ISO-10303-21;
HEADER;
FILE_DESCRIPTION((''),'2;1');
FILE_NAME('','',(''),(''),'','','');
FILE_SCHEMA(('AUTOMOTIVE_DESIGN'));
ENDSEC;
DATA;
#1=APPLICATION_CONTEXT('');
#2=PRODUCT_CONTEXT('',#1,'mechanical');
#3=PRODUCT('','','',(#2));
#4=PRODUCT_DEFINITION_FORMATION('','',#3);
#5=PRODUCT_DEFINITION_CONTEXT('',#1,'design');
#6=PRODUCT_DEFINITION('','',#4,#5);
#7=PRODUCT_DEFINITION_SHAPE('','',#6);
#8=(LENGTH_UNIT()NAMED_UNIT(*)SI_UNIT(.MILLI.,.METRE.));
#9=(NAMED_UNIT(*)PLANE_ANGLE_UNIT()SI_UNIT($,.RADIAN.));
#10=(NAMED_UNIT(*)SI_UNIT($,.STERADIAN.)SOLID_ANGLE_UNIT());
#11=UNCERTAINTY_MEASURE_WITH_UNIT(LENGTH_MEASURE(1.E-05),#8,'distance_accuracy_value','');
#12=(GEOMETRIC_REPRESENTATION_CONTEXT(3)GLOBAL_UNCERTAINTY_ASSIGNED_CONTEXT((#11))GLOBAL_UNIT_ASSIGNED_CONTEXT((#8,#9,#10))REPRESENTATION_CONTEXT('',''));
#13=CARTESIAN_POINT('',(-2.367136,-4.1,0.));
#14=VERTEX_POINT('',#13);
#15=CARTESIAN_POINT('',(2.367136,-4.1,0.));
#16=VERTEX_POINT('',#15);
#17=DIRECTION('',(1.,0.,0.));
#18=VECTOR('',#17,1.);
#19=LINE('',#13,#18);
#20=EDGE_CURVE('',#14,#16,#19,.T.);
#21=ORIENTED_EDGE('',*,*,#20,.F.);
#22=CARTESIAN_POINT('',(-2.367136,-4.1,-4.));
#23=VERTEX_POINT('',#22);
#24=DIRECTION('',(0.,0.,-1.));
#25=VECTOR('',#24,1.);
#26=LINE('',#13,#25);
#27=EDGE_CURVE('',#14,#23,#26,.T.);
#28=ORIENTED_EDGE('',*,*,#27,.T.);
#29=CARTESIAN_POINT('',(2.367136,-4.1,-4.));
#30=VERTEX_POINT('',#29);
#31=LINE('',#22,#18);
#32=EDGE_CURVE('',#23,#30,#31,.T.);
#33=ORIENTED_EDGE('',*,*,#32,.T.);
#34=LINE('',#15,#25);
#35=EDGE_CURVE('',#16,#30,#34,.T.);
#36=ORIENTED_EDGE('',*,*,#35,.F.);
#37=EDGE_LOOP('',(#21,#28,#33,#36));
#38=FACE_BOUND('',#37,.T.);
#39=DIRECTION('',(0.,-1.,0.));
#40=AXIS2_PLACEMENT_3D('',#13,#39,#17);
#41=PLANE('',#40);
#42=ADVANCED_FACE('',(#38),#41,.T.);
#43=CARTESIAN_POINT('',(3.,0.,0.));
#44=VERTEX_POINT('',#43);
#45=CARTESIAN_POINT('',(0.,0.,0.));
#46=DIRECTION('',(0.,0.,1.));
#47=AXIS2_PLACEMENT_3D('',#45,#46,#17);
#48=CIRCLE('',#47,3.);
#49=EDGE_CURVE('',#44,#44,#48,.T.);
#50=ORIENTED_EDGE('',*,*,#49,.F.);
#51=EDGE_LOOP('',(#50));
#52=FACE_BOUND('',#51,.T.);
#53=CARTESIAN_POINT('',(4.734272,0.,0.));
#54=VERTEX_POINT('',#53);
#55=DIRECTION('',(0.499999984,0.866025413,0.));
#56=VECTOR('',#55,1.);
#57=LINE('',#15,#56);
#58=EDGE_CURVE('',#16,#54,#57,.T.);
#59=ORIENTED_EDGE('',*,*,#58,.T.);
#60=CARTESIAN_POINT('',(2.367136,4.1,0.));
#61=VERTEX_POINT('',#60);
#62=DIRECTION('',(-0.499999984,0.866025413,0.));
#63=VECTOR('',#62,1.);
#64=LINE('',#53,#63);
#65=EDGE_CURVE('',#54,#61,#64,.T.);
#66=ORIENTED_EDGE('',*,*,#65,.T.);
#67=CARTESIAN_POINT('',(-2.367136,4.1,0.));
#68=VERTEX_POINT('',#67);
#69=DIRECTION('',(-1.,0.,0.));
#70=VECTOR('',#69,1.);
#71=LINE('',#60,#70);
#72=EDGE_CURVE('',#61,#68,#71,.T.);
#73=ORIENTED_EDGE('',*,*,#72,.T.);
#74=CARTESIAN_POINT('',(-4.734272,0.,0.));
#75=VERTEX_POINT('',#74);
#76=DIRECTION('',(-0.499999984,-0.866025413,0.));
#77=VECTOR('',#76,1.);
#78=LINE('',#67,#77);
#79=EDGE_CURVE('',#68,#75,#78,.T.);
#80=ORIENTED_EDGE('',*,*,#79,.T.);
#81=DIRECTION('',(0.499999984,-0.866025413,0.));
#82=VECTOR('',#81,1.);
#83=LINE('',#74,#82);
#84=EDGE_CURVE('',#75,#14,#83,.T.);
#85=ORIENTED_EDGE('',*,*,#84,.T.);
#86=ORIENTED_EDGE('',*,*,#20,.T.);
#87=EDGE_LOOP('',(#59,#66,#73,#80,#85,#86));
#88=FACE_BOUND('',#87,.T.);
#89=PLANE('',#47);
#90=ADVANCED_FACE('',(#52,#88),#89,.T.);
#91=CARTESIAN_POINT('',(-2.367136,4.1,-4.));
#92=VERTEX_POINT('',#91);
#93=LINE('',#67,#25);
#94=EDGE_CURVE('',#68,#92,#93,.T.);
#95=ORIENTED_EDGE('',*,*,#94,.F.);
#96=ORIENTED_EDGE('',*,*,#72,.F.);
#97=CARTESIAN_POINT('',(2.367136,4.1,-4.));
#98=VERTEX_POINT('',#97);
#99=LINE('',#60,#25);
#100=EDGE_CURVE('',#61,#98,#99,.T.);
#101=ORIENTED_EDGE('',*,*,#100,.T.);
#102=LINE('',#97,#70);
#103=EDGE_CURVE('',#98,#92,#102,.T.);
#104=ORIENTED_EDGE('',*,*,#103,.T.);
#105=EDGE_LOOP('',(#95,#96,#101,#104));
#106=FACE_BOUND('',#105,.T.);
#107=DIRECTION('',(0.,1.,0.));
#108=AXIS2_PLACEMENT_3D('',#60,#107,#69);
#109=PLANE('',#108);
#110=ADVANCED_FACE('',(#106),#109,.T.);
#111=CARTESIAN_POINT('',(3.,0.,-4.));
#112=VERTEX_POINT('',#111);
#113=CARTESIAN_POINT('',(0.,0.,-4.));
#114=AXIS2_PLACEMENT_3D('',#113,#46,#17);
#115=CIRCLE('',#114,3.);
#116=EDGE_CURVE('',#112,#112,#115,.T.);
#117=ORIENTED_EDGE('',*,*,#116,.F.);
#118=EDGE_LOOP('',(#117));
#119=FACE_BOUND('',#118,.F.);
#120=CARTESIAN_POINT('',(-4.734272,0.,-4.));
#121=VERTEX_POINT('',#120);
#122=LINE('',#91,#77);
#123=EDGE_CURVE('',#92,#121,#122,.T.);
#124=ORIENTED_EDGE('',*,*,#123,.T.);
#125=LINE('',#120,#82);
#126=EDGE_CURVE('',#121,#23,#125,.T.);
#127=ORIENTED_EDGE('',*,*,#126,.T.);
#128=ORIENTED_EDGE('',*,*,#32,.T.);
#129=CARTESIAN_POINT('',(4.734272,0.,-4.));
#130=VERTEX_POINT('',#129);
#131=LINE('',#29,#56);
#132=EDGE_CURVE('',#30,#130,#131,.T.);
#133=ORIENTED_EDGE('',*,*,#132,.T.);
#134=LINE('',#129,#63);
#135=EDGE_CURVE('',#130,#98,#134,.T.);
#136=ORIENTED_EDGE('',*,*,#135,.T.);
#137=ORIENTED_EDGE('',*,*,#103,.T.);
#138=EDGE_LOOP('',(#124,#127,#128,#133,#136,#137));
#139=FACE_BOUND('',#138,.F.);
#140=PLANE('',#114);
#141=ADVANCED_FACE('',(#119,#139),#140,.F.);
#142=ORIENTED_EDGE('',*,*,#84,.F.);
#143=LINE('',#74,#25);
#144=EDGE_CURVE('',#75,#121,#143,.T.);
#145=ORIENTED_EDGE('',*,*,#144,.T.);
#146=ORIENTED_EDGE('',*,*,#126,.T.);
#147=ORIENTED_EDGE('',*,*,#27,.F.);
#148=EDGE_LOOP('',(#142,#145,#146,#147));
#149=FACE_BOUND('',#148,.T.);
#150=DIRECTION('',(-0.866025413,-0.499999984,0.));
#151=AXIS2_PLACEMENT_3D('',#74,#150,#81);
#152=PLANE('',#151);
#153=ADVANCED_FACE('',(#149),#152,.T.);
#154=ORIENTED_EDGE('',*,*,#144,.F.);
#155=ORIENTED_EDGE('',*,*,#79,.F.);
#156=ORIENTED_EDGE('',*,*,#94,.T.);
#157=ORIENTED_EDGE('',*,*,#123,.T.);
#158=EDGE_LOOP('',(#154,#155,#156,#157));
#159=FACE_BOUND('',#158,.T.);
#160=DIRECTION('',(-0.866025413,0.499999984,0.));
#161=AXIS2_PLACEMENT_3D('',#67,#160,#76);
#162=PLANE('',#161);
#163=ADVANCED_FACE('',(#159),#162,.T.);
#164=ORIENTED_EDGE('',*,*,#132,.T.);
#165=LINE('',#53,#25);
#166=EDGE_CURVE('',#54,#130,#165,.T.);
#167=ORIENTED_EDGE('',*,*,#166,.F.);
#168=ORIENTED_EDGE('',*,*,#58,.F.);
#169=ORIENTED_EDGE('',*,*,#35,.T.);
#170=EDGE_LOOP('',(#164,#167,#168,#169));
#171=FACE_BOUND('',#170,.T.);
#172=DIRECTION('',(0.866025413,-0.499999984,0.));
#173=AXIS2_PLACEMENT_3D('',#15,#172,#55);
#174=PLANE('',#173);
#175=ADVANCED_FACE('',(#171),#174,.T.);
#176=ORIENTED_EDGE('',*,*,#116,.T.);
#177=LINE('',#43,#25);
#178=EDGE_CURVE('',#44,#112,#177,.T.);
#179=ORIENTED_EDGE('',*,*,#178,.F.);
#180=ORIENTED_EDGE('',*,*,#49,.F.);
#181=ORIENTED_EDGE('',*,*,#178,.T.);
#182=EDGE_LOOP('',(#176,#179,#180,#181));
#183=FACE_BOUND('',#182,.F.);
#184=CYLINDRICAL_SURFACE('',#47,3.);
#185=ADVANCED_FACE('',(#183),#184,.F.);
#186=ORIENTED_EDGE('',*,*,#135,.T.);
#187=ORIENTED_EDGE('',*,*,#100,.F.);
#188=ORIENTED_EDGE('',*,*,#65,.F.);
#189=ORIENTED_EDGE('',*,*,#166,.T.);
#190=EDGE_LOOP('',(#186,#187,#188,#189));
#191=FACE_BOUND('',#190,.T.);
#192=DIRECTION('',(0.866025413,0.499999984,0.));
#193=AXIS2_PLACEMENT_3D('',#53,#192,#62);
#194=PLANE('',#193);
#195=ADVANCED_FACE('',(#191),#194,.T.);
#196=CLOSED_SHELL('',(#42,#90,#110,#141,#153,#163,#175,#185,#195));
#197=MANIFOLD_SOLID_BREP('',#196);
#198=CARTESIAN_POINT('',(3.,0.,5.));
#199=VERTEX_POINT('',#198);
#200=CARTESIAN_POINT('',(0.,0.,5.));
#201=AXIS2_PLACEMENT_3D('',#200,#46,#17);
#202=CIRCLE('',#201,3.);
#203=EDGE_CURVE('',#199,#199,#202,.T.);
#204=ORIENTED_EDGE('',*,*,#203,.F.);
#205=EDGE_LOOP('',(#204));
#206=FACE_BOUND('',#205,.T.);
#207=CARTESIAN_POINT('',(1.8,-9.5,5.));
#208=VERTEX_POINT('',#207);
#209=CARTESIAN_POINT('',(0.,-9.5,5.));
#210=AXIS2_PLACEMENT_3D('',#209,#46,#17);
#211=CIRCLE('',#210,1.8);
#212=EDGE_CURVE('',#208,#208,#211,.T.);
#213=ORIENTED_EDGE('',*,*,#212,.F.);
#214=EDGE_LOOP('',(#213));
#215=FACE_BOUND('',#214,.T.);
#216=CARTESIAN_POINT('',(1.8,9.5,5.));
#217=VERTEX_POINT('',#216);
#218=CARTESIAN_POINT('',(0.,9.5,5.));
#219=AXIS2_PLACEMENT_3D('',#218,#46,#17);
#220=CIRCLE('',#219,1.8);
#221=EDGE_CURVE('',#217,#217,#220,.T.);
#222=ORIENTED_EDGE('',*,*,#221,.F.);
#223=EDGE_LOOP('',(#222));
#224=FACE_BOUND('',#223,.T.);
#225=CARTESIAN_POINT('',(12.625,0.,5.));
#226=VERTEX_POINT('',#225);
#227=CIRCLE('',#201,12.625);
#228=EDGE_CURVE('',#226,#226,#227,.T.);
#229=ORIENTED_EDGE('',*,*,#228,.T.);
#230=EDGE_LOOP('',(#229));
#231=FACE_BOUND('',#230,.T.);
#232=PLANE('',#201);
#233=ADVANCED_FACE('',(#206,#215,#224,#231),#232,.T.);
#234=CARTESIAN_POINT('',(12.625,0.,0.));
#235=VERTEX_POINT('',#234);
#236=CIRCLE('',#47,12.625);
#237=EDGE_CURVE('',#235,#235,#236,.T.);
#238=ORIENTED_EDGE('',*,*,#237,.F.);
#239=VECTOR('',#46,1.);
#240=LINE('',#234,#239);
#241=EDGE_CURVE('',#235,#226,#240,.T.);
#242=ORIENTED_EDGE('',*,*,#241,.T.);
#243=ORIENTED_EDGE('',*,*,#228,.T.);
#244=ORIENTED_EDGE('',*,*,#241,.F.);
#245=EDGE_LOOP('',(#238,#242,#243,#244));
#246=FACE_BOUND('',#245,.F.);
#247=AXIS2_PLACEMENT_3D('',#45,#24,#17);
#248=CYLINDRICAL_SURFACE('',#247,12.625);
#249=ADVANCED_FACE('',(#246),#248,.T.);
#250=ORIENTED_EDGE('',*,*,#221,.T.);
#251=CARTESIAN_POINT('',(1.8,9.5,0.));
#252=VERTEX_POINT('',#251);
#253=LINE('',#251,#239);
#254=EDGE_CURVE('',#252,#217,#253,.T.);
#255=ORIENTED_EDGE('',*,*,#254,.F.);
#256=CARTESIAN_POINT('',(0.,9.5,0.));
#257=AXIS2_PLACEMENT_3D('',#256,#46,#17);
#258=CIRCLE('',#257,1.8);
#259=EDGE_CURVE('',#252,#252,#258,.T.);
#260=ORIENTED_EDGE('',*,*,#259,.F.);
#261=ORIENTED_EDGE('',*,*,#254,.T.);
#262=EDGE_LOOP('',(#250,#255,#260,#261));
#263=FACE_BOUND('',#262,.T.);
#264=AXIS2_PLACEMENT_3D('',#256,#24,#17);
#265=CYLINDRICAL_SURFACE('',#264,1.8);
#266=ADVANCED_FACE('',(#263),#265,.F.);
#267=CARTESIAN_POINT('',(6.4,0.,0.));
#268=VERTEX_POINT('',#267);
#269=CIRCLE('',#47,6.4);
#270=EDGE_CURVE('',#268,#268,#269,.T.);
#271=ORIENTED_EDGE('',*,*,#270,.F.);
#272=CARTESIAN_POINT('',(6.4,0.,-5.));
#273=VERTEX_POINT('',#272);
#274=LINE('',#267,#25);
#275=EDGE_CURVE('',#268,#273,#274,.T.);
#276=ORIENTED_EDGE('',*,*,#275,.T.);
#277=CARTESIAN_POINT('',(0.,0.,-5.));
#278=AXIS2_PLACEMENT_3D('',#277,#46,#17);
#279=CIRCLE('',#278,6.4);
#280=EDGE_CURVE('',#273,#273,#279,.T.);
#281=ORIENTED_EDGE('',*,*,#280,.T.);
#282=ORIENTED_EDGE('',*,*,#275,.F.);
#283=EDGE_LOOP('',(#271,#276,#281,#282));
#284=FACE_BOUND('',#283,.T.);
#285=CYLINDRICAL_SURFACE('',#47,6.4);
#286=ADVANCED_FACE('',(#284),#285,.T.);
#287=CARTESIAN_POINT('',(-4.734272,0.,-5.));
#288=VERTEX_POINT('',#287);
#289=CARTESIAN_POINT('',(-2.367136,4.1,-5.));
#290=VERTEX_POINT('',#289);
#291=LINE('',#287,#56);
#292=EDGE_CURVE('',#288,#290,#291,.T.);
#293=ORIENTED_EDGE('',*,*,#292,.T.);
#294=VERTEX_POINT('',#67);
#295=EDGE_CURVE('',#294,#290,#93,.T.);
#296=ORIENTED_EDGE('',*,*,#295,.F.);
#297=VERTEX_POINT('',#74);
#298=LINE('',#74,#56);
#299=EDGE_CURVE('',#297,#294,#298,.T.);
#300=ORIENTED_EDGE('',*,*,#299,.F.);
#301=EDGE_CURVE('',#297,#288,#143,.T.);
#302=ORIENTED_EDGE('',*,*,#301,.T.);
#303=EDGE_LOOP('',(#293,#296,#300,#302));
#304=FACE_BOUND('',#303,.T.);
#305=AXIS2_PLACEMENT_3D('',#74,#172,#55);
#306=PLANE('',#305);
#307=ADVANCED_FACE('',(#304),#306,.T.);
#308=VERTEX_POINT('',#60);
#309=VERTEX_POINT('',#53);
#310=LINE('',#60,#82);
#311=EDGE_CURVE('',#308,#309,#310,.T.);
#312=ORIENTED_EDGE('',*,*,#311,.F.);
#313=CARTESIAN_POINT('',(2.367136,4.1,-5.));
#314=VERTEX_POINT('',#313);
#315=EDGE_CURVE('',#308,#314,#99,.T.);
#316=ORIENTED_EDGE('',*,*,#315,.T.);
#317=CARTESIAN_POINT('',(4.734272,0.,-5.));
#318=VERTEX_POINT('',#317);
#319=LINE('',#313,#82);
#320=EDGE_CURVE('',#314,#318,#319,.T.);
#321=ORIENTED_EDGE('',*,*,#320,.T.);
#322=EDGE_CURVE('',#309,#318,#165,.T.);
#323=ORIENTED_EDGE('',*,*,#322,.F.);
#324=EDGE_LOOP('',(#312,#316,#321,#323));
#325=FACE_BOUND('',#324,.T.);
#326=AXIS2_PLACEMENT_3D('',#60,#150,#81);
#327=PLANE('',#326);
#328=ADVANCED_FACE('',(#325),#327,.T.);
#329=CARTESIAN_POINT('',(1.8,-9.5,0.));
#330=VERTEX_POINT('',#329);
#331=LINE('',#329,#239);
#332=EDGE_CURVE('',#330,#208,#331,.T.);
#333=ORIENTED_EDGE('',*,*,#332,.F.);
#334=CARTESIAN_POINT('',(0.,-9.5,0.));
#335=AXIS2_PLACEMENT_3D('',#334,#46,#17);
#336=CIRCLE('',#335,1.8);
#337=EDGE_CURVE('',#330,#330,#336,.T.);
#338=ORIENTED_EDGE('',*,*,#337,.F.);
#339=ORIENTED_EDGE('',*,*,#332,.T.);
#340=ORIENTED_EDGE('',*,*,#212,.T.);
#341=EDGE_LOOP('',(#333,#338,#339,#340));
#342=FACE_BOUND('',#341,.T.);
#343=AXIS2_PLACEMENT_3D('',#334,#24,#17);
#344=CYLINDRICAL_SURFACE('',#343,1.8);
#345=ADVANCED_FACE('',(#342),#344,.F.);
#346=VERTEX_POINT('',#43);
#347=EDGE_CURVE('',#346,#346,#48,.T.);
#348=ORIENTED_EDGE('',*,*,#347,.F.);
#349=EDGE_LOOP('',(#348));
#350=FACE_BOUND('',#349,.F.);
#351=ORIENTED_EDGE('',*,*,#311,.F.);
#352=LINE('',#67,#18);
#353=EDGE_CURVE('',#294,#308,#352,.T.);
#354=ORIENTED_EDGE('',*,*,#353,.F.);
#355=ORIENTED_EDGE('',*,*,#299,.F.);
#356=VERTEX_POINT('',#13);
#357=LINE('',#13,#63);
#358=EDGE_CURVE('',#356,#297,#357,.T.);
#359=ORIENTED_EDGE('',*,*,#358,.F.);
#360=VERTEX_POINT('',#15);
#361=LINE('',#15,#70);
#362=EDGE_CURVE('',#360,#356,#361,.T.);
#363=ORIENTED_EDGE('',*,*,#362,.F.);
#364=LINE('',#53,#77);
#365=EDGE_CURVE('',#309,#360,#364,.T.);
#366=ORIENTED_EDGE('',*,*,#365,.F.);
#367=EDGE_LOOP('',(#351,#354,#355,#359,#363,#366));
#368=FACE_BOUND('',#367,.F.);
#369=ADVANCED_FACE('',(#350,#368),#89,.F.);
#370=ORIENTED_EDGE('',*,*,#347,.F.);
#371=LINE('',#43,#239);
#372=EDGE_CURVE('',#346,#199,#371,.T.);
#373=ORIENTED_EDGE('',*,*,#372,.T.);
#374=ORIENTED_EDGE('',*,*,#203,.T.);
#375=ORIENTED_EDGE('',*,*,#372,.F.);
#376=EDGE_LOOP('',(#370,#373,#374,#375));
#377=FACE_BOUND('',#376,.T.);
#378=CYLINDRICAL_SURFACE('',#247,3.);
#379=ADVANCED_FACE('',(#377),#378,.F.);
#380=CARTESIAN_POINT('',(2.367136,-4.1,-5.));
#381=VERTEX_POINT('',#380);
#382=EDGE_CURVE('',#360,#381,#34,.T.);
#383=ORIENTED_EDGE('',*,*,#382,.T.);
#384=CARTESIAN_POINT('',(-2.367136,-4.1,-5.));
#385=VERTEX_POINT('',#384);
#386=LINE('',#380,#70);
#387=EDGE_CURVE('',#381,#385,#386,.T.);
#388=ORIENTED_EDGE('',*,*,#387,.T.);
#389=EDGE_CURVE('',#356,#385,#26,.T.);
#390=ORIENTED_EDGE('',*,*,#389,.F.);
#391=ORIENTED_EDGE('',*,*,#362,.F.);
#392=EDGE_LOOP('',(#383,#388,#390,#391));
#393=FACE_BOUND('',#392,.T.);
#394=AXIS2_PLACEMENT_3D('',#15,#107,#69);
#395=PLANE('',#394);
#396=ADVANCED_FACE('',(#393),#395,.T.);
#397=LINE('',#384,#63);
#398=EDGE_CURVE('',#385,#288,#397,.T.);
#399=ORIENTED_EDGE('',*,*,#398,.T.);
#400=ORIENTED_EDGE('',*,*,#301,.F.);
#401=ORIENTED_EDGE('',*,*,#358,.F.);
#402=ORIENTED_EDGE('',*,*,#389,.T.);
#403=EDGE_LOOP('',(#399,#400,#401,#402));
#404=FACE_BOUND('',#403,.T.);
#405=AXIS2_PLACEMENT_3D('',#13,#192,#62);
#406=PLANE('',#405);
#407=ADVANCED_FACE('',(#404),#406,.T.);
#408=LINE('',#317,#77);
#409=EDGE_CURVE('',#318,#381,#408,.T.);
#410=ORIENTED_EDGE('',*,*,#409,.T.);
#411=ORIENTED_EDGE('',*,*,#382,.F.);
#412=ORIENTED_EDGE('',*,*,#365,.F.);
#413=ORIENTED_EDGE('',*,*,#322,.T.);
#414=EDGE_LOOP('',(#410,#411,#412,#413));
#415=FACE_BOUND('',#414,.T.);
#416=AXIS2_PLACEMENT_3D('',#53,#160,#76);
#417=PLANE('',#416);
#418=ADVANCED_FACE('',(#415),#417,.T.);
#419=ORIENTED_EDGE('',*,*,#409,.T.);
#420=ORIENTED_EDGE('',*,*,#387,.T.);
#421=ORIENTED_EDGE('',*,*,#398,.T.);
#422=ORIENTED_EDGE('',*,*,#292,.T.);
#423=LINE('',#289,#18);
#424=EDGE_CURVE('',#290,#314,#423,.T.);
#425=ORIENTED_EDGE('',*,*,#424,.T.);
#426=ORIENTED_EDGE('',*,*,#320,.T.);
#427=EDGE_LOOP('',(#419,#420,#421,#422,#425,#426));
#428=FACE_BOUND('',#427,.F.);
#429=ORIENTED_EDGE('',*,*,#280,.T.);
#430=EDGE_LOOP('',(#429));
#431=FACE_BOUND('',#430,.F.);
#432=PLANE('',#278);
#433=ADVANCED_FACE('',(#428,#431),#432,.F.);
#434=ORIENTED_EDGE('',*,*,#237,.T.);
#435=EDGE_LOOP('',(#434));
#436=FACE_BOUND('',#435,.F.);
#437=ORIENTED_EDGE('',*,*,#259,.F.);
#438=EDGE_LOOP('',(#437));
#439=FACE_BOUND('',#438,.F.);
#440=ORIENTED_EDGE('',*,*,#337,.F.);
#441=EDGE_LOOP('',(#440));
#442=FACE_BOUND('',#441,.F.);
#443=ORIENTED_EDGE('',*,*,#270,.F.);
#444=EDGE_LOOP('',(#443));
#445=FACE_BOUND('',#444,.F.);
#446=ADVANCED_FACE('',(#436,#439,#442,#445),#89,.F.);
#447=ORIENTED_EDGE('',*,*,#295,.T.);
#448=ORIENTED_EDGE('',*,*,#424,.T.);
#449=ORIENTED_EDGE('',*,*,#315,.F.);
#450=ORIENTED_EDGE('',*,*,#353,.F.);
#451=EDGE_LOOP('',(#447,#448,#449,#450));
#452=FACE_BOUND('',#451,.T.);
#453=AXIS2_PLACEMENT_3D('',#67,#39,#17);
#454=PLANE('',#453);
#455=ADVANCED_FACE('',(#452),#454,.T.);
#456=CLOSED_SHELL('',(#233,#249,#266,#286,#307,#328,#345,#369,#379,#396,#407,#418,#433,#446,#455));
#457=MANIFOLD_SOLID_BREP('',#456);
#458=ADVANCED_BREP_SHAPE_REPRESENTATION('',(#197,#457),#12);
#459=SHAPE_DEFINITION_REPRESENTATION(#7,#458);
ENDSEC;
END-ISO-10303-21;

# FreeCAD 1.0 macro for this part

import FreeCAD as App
import Part
import Sketcher
from FreeCAD import Vector
Q = App.Units.Quantity


def add_polygon(sketch, points):
    """Adds a closed chain of lines whose ends are joined by coincident constraints."""
    first, n = sketch.GeometryCount, len(points)
    for a, b in zip(points, points[1:] + points[:1]):
        sketch.addGeometry(Part.LineSegment(App.Vector(*a, 0), App.Vector(*b, 0)), False)
    for i in range(n):
        sketch.addConstraint(Sketcher.Constraint("Coincident", first + i, 2, first + (i + 1) % n, 1))

doc = App.newDocument("Part")
body = doc.addObject("PartDesign::Body", "Body")

sketch1 = body.newObject("Sketcher::SketchObject", "Sketch")
sketch1.AttachmentSupport = (doc.getObject("XY_Plane"), [""])
sketch1.MapMode = "FlatFace"
sketch1.addGeometry([
    Part.Circle(Vector(0, 0, 0), Vector(0, 0, 1), 12.625),
    Part.Circle(Vector(0, -9.5, 0), Vector(0, 0, 1), 1.8),
    Part.Circle(Vector(0, 0, 0), Vector(0, 0, 1), 3),
    Part.Circle(Vector(0, 9.5, 0), Vector(0, 0, 1), 1.8),
], False)
sketch1.addConstraint([
    Sketcher.Constraint("Coincident", 0, 3, -1, 1),
    Sketcher.Constraint("Coincident", 2, 3, -1, 1),
    Sketcher.Constraint("Equal", 1, 3),
    Sketcher.Constraint("Symmetric", 1, 3, 3, 3, -1, 1),
    Sketcher.Constraint("PointOnObject", 1, 3, -2),
    Sketcher.Constraint("Diameter", 2, 6.0),
    Sketcher.Constraint("Diameter", 1, 3.6),
    Sketcher.Constraint("Diameter", 0, 25.25),
    Sketcher.Constraint("DistanceY", 1, 3, 3, 3, 19.0),
])
pad1 = body.newObject("PartDesign::Pad", "Pad")
pad1.Profile = sketch1
pad1.Length = 5

sketch2 = body.newObject("Sketcher::SketchObject", "Sketch001")
sketch2.AttachmentSupport = (doc.getObject("XY_Plane"), [""])
sketch2.MapMode = "FlatFace"
sketch2.addGeometry(Part.Circle(Vector(0, 0, 0), Vector(0, 0, 1), 6.4), False)
add_polygon(sketch2, [(-2.367136, -4.1), (-4.734272, 0), (-2.367136, 4.1), (2.367136, 4.1), (4.734272, 0), (2.367136, -4.1)])
sketch2.addConstraint([
    Sketcher.Constraint("Horizontal", 3),
    Sketcher.Constraint("Horizontal", 6),
    Sketcher.Constraint("Coincident", 0, 3, -1, 1),
    Sketcher.Constraint("Symmetric", 1, 2, 4, 2, -1, 1),
    Sketcher.Constraint("Symmetric", 2, 2, 5, 2, -1, 1),
    Sketcher.Constraint("PointOnObject", 1, 2, -1),
    Sketcher.Constraint("Parallel", 1, 4),
    Sketcher.Constraint("Vertical", 3, 2, 5, 2),
    Sketcher.Constraint("Diameter", 0, 12.8),
    Sketcher.Constraint("Angle", 1, Q("119.999999 deg")),
    Sketcher.Constraint("DistanceY", -1, 1, 2, 2, 4.1),
    Sketcher.Constraint("DistanceX", 3, 1, 3, 2, 4.734272),
])
pad2 = body.newObject("PartDesign::Pad", "Pad001")
pad2.Profile = sketch2
pad2.Length = 5
pad2.Reversed = True
body2 = doc.addObject("PartDesign::Body", "Body001")

sketch3 = body2.newObject("Sketcher::SketchObject", "Sketch002")
sketch3.AttachmentSupport = (doc.getObject("XY_Plane001"), [""])
sketch3.MapMode = "FlatFace"
add_polygon(sketch3, [(2.367136, 4.1), (-2.367136, 4.1), (-4.734272, 0), (-2.367136, -4.1), (2.367136, -4.1), (4.734272, 0)])
sketch3.addGeometry(Part.Circle(Vector(0, 0, 0), Vector(0, 0, 1), 3), False)
sketch3.addConstraint([
    Sketcher.Constraint("Horizontal", 0),
    Sketcher.Constraint("Horizontal", 3),
    Sketcher.Constraint("Coincident", 6, 3, -1, 1),
    Sketcher.Constraint("Symmetric", 0, 2, 3, 2, -1, 1),
    Sketcher.Constraint("Symmetric", 1, 2, 4, 2, -1, 1),
    Sketcher.Constraint("PointOnObject", 1, 2, -1),
    Sketcher.Constraint("Parallel", 2, 5),
    Sketcher.Constraint("Vertical", 0, 2, 2, 2),
    Sketcher.Constraint("Diameter", 6, 6.0),
    Sketcher.Constraint("Angle", 1, Q("-119.999999 deg")),
    Sketcher.Constraint("DistanceY", -1, 1, 0, 2, 4.1),
    Sketcher.Constraint("DistanceX", 0, 2, 0, 1, 4.734272),
])
pad3 = body2.newObject("PartDesign::Pad", "Pad002")
pad3.Profile = sketch3
pad3.Length = 4
pad3.Reversed = True

doc.recompute()
